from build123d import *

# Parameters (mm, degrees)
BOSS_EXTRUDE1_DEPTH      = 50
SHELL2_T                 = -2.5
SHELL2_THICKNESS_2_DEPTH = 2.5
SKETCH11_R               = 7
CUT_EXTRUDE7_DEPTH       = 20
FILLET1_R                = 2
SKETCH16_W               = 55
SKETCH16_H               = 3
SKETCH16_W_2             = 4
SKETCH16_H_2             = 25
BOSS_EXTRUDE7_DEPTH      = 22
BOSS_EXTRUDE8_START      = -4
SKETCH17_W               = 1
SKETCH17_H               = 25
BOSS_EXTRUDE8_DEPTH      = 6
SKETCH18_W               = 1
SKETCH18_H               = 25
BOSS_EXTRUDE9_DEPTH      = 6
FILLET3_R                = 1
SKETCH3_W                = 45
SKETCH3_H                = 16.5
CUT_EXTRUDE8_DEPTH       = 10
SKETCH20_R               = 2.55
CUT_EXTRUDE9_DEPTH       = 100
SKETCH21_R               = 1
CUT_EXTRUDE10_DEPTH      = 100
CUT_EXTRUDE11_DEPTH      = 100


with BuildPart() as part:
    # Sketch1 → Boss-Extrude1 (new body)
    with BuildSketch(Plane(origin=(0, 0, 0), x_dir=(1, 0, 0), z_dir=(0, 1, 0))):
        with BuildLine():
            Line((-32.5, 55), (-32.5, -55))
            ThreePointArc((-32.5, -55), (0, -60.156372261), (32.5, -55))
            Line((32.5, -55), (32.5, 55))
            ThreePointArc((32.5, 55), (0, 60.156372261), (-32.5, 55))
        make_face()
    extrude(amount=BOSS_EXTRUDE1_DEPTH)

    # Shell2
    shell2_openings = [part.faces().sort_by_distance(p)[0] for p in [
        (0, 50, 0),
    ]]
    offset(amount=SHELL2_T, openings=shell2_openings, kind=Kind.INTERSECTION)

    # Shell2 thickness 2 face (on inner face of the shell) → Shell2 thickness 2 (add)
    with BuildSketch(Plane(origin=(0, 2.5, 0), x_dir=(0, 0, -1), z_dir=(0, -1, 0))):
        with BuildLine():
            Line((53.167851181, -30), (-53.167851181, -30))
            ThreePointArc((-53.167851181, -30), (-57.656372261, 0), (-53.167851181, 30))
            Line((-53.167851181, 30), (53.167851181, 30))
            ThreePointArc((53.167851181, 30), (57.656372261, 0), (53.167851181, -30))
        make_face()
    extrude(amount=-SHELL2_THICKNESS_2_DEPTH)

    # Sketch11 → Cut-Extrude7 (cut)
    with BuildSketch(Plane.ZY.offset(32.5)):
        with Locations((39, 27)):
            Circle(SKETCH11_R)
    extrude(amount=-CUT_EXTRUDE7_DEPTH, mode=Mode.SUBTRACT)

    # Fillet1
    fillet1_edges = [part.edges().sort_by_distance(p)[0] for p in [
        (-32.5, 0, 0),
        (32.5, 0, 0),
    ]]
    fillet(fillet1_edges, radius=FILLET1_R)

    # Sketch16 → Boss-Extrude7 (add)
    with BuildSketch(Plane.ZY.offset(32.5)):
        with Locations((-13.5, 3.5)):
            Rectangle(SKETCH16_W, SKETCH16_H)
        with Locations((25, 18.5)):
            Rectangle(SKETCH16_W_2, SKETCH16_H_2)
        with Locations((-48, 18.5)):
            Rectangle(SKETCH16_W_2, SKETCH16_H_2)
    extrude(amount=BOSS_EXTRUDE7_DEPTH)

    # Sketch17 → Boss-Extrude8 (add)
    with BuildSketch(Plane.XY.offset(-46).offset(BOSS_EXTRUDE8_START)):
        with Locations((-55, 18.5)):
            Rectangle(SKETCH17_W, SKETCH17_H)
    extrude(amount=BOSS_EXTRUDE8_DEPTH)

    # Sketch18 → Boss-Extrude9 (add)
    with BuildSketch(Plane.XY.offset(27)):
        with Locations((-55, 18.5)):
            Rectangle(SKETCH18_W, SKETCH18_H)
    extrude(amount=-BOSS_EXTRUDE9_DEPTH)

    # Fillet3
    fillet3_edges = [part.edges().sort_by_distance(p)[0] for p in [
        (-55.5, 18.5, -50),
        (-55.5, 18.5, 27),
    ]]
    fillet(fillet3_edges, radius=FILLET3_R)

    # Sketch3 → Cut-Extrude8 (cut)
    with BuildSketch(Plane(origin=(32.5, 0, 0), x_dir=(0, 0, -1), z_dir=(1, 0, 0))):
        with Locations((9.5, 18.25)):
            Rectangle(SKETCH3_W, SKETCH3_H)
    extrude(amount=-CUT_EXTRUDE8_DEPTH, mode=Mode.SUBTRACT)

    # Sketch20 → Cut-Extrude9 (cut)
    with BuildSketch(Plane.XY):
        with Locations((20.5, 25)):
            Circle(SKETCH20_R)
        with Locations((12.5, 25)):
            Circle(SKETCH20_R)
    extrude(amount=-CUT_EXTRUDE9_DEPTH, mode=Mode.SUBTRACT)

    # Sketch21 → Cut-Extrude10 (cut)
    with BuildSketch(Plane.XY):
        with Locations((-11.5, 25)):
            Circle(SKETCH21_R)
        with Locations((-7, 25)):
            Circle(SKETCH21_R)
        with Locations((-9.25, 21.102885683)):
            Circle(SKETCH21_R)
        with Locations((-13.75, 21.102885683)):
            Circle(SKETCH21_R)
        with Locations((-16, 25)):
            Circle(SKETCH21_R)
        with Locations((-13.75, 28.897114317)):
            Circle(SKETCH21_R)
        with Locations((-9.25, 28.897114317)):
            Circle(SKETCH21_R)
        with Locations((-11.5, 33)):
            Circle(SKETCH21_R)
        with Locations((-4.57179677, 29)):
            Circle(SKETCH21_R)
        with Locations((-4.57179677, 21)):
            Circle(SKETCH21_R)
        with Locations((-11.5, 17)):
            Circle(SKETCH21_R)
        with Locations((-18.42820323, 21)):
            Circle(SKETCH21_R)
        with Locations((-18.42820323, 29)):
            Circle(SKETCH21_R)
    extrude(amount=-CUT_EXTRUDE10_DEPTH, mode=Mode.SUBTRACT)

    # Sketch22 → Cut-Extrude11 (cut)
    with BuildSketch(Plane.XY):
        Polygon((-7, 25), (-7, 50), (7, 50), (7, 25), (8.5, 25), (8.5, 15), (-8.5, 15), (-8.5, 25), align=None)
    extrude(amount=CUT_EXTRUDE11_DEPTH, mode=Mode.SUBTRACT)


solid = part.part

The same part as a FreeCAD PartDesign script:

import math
import FreeCAD as App
import Part
import Sketcher

V = App.Vector
Q = App.Units.Quantity


def edges_at(feature, points):
    """Names of the edges that pass closest to the given points."""
    edges = feature.Shape.Edges
    near = lambda p: min(range(len(edges)), key=lambda i: edges[i].distToShape(Part.Vertex(*p))[0])
    return sorted({f"Edge{near(p) + 1}" for p in points})


def faces_at(feature, points):
    """Names of the faces that lie closest to the given points."""
    faces = feature.Shape.Faces
    near = lambda p: min(range(len(faces)), key=lambda i: faces[i].distToShape(Part.Vertex(*p))[0])
    return sorted({f"Face{near(p) + 1}" for p in points})

doc = App.newDocument("Part")
body = doc.addObject("PartDesign::Body", "Body")

# Sketch on XZ plane
sketch1 = body.newObject("Sketcher::SketchObject", "Sketch")
sketch1.AttachmentSupport = (doc.getObject("XZ_Plane"), [""])
sketch1.MapMode = "FlatFace"
sketch1.addGeometry([
    Part.LineSegment(V(-32, -55, 0), V(-32, 55, 0)),
    Part.ArcOfCircle(Part.Circle(V(0, -45, 0), V(0, 0, 1), 105), math.radians(72), math.radians(108)),
    Part.LineSegment(V(32, 55, 0), V(32, -55, 0)),
    Part.ArcOfCircle(Part.Circle(V(0, 45, 0), V(0, 0, 1), 105), math.radians(-108), math.radians(-72)),
], False)
sketch1.addConstraint([
    Sketcher.Constraint("Coincident", 0, 2, 1, 2),
    Sketcher.Constraint("Coincident", 1, 1, 2, 1),
    Sketcher.Constraint("Coincident", 2, 2, 3, 2),
    Sketcher.Constraint("Coincident", 3, 1, 0, 1),
    Sketcher.Constraint("Vertical", 0),
    Sketcher.Constraint("Vertical", 2),
    Sketcher.Constraint("Equal", 1, 3),
    Sketcher.Constraint("Symmetric", 1, 3, 3, 3, -1, 1),
    Sketcher.Constraint("Symmetric", 0, 2, 1, 1, -2),
    Sketcher.Constraint("Radius", 1, Q("105 mm")),
    Sketcher.Constraint("DistanceY", 0, 1, 0, 2, Q("110 mm")),
    Sketcher.Constraint("DistanceX", 0, 2, 1, 1, Q("65 mm")),
])
pad1 = body.newObject("PartDesign::Pad", "Pad")
pad1.Profile = sketch1
pad1.Length = 50
pad1.Reversed = True
doc.recompute()

thickness = body.newObject("PartDesign::Thickness", "Thickness")
thickness.Base = (pad1, faces_at(pad1, [(0, 50, 0)]))
thickness.Value = 2.5
thickness.Reversed = True
thickness.Join = "Intersection"

# Sketch on XZ plane
sketch2 = body.newObject("Sketcher::SketchObject", "Sketch001")
sketch2.AttachmentSupport = (doc.getObject("XZ_Plane"), [""])
sketch2.MapMode = "FlatFace"
sketch2.AttachmentOffset = App.Placement(V(0, 0, -2.5), App.Rotation())
sketch2.addGeometry([
    Part.LineSegment(V(-30, 53, 0), V(-30, -53, 0)),
    Part.ArcOfCircle(Part.Circle(V(0, 45, 0), V(0, 0, 1), 103), math.radians(-107), math.radians(-73)),
    Part.LineSegment(V(30, -53, 0), V(30, 53, 0)),
    Part.ArcOfCircle(Part.Circle(V(0, -45, 0), V(0, 0, 1), 103), math.radians(73), math.radians(107)),
], False)
sketch2.addConstraint([
    Sketcher.Constraint("Coincident", 0, 2, 1, 1),
    Sketcher.Constraint("Coincident", 1, 2, 2, 1),
    Sketcher.Constraint("Coincident", 2, 2, 3, 1),
    Sketcher.Constraint("Coincident", 3, 2, 0, 1),
    Sketcher.Constraint("Vertical", 0),
    Sketcher.Constraint("Vertical", 2),
    Sketcher.Constraint("Equal", 1, 3),
    Sketcher.Constraint("Symmetric", 1, 3, 3, 3, -1, 1),
    Sketcher.Constraint("Symmetric", 0, 2, 1, 2, -2),
    Sketcher.Constraint("Radius", 1, Q("102.5 mm")),
    Sketcher.Constraint("DistanceX", 0, 2, -1, 1, Q("30 mm")),
    Sketcher.Constraint("DistanceY", 0, 2, 0, 1, Q("106.335702 mm")),
])
pad2 = body.newObject("PartDesign::Pad", "Pad001")
pad2.Profile = sketch2
pad2.Length = 2.5
pad2.Reversed = True

# Sketch on YZ plane
sketch3 = body.newObject("Sketcher::SketchObject", "Sketch002")
sketch3.AttachmentSupport = (doc.getObject("YZ_Plane"), [""])
sketch3.MapMode = "FlatFace"
sketch3.AttachmentOffset = App.Placement(V(0, 0, -32.5), App.Rotation())
sketch3.addGeometry(Part.Circle(V(27, 39, 0), V(0, 0, 1), 7), False)
sketch3.addConstraint([
    Sketcher.Constraint("Diameter", 0, Q("14 mm")),
    Sketcher.Constraint("DistanceX", -1, 1, 0, 3, Q("27 mm")),
    Sketcher.Constraint("DistanceY", -1, 1, 0, 3, Q("39 mm")),
])
pocket1 = body.newObject("PartDesign::Pocket", "Pocket")
pocket1.Profile = sketch3
pocket1.Length = 20
pocket1.Reversed = True
doc.recompute()

fillet = body.newObject("PartDesign::Fillet", "Fillet")
fillet.Base = (pocket1, edges_at(pocket1, [(-32.5, 0, 0), (32.5, 0, 0)]))
fillet.Radius = 2

# Sketch on YZ plane
sketch4 = body.newObject("Sketcher::SketchObject", "Sketch003")
sketch4.AttachmentSupport = (doc.getObject("YZ_Plane"), [""])
sketch4.MapMode = "FlatFace"
sketch4.AttachmentOffset = App.Placement(V(0, 0, -32.5), App.Rotation())
sketch4.addGeometry([
    Part.LineSegment(V(5, -41, 0), V(2, -41, 0)),  # 0
    Part.LineSegment(V(2, -41, 0), V(2, 14, 0)),  # 1
    Part.LineSegment(V(2, 14, 0), V(5, 14, 0)),  # 2
    Part.LineSegment(V(5, 14, 0), V(5, -41, 0)),  # 3
    Part.LineSegment(V(31, 23, 0), V(6, 23, 0)),  # 4
    Part.LineSegment(V(6, 23, 0), V(6, 27, 0)),  # 5
    Part.LineSegment(V(6, 27, 0), V(31, 27, 0)),  # 6
    Part.LineSegment(V(31, 27, 0), V(31, 23, 0)),  # 7
    Part.LineSegment(V(31, -50, 0), V(6, -50, 0)),  # 8
    Part.LineSegment(V(6, -50, 0), V(6, -46, 0)),  # 9
    Part.LineSegment(V(6, -46, 0), V(31, -46, 0)),  # 10
    Part.LineSegment(V(31, -46, 0), V(31, -50, 0)),  # 11
], False)
sketch4.addConstraint([
    Sketcher.Constraint("Coincident", 0, 2, 1, 1),
    Sketcher.Constraint("Coincident", 1, 2, 2, 1),
    Sketcher.Constraint("Coincident", 2, 2, 3, 1),
    Sketcher.Constraint("Coincident", 3, 2, 0, 1),
    Sketcher.Constraint("Coincident", 4, 2, 5, 1),
    Sketcher.Constraint("Coincident", 5, 2, 6, 1),
    Sketcher.Constraint("Coincident", 6, 2, 7, 1),
    Sketcher.Constraint("Coincident", 7, 2, 4, 1),
    Sketcher.Constraint("Coincident", 8, 2, 9, 1),
    Sketcher.Constraint("Coincident", 9, 2, 10, 1),
    Sketcher.Constraint("Coincident", 10, 2, 11, 1),
    Sketcher.Constraint("Coincident", 11, 2, 8, 1),
    Sketcher.Constraint("Horizontal", 0),
    Sketcher.Constraint("Vertical", 1),
    Sketcher.Constraint("Horizontal", 2),
    Sketcher.Constraint("Vertical", 3),
    Sketcher.Constraint("Horizontal", 4),
    Sketcher.Constraint("Vertical", 5),
    Sketcher.Constraint("Horizontal", 6),
    Sketcher.Constraint("Vertical", 7),
    Sketcher.Constraint("Horizontal", 8),
    Sketcher.Constraint("Vertical", 9),
    Sketcher.Constraint("Horizontal", 10),
    Sketcher.Constraint("Vertical", 11),
    Sketcher.Constraint("Vertical", 5, 2, 8, 2),
    Sketcher.Constraint("Vertical", 7, 2, 10, 2),
    Sketcher.Constraint("Equal", 7, 9),
    Sketcher.Constraint("DistanceX", 0, 2, 0, 1, Q("3 mm")),
    Sketcher.Constraint("DistanceX", 4, 2, 4, 1, Q("25 mm")),
    Sketcher.Constraint("DistanceY", 1, 1, 1, 2, Q("55 mm")),
    Sketcher.Constraint("DistanceY", 5, 1, 5, 2, Q("4 mm")),
    Sketcher.Constraint("DistanceX", -1, 1, 0, 2, Q("2 mm")),
    Sketcher.Constraint("DistanceY", 0, 2, -1, 1, Q("41 mm")),
    Sketcher.Constraint("DistanceX", -1, 1, 4, 2, Q("6 mm")),
    Sketcher.Constraint("DistanceY", -1, 1, 4, 2, Q("23 mm")),
    Sketcher.Constraint("DistanceY", 8, 2, -1, 1, Q("50 mm")),
])
pad3 = body.newObject("PartDesign::Pad", "Pad002")
pad3.Profile = sketch4
pad3.Length = 22
pad3.Reversed = True

# Sketch on XY plane
sketch5 = body.newObject("Sketcher::SketchObject", "Sketch004")
sketch5.AttachmentSupport = (doc.getObject("XY_Plane"), [""])
sketch5.MapMode = "FlatFace"
sketch5.AttachmentOffset = App.Placement(V(0, 0, -50), App.Rotation())
sketch5.addGeometry([
    Part.LineSegment(V(-55.5, 31, 0), V(-55.5, 6, 0)),
    Part.LineSegment(V(-55.5, 6, 0), V(-54.5, 6, 0)),
    Part.LineSegment(V(-54.5, 6, 0), V(-54.5, 31, 0)),
    Part.LineSegment(V(-54.5, 31, 0), V(-55.5, 31, 0)),
], False)
sketch5.addConstraint([
    Sketcher.Constraint("Coincident", 0, 2, 1, 1),
    Sketcher.Constraint("Coincident", 1, 2, 2, 1),
    Sketcher.Constraint("Coincident", 2, 2, 3, 1),
    Sketcher.Constraint("Coincident", 3, 2, 0, 1),
    Sketcher.Constraint("Vertical", 0),
    Sketcher.Constraint("Horizontal", 1),
    Sketcher.Constraint("Vertical", 2),
    Sketcher.Constraint("Horizontal", 3),
    Sketcher.Constraint("DistanceX", 1, 1, 1, 2, Q("1 mm")),
    Sketcher.Constraint("DistanceY", 0, 2, 0, 1, Q("25 mm")),
    Sketcher.Constraint("DistanceY", -1, 1, 0, 2, Q("6 mm")),
    Sketcher.Constraint("DistanceX", 0, 2, -1, 1, Q("55.5 mm")),
])
pad4 = body.newObject("PartDesign::Pad", "Pad003")
pad4.Profile = sketch5
pad4.Length = 6

# Sketch on XY plane
sketch6 = body.newObject("Sketcher::SketchObject", "Sketch005")
sketch6.AttachmentSupport = (doc.getObject("XY_Plane"), [""])
sketch6.MapMode = "FlatFace"
sketch6.AttachmentOffset = App.Placement(V(0, 0, 27), App.Rotation())
sketch6.addGeometry([
    Part.LineSegment(V(-55.5, 31, 0), V(-55.5, 6, 0)),
    Part.LineSegment(V(-55.5, 6, 0), V(-54.5, 6, 0)),
    Part.LineSegment(V(-54.5, 6, 0), V(-54.5, 31, 0)),
    Part.LineSegment(V(-54.5, 31, 0), V(-55.5, 31, 0)),
], False)
sketch6.addConstraint([
    Sketcher.Constraint("Coincident", 0, 2, 1, 1),
    Sketcher.Constraint("Coincident", 1, 2, 2, 1),
    Sketcher.Constraint("Coincident", 2, 2, 3, 1),
    Sketcher.Constraint("Coincident", 3, 2, 0, 1),
    Sketcher.Constraint("Vertical", 0),
    Sketcher.Constraint("Horizontal", 1),
    Sketcher.Constraint("Vertical", 2),
    Sketcher.Constraint("Horizontal", 3),
    Sketcher.Constraint("DistanceX", 1, 1, 1, 2, Q("1 mm")),
    Sketcher.Constraint("DistanceY", 0, 2, 0, 1, Q("25 mm")),
    Sketcher.Constraint("DistanceY", -1, 1, 0, 2, Q("6 mm")),
    Sketcher.Constraint("DistanceX", 0, 2, -1, 1, Q("55.5 mm")),
])
pad5 = body.newObject("PartDesign::Pad", "Pad004")
pad5.Profile = sketch6
pad5.Length = 6
pad5.Reversed = True
doc.recompute()

fillet2 = body.newObject("PartDesign::Fillet", "Fillet001")
fillet2.Base = (pad5, edges_at(pad5, [(-55.5, 18.5, -50), (-55.5, 18.5, 27)]))
fillet2.Radius = 1

# Sketch on YZ plane
sketch7 = body.newObject("Sketcher::SketchObject", "Sketch006")
sketch7.AttachmentSupport = (doc.getObject("YZ_Plane"), [""])
sketch7.MapMode = "FlatFace"
sketch7.AttachmentOffset = App.Placement(V(0, 0, 32.5), App.Rotation())
sketch7.addGeometry([
    Part.LineSegment(V(26, 13, 0), V(10, 13, 0)),
    Part.LineSegment(V(10, 13, 0), V(10, -32, 0)),
    Part.LineSegment(V(10, -32, 0), V(26, -32, 0)),
    Part.LineSegment(V(26, -32, 0), V(26, 13, 0)),
], False)
sketch7.addConstraint([
    Sketcher.Constraint("Coincident", 0, 2, 1, 1),
    Sketcher.Constraint("Coincident", 1, 2, 2, 1),
    Sketcher.Constraint("Coincident", 2, 2, 3, 1),
    Sketcher.Constraint("Coincident", 3, 2, 0, 1),
    Sketcher.Constraint("Horizontal", 0),
    Sketcher.Constraint("Vertical", 1),
    Sketcher.Constraint("Horizontal", 2),
    Sketcher.Constraint("Vertical", 3),
    Sketcher.Constraint("DistanceY", 1, 2, 1, 1, Q("45 mm")),
    Sketcher.Constraint("DistanceX", 0, 2, 0, 1, Q("16.5 mm")),
    Sketcher.Constraint("DistanceX", -1, 1, 0, 2, Q("10 mm")),
    Sketcher.Constraint("DistanceY", -1, 1, 0, 2, Q("13 mm")),
])
pocket2 = body.newObject("PartDesign::Pocket", "Pocket001")
pocket2.Profile = sketch7
pocket2.Length = 10

# Sketch on XY plane
sketch8 = body.newObject("Sketcher::SketchObject", "Sketch007")
sketch8.AttachmentSupport = (doc.getObject("XY_Plane"), [""])
sketch8.MapMode = "FlatFace"
sketch8.addGeometry([
    Part.Circle(V(20.5, 25, 0), V(0, 0, 1), 2.5),
    Part.Circle(V(12.5, 25, 0), V(0, 0, 1), 2.5),
], False)
sketch8.addConstraint([
    Sketcher.Constraint("Equal", 0, 1),
    Sketcher.Constraint("Horizontal", 0, 3, 1, 3),
    Sketcher.Constraint("Diameter", 0, Q("5.1 mm")),
    Sketcher.Constraint("DistanceY", -1, 1, 0, 3, Q("25 mm")),
    Sketcher.Constraint("DistanceX", 1, 3, 0, 3, Q("8 mm")),
    Sketcher.Constraint("DistanceX", -1, 1, 0, 3, Q("20.5 mm")),
])
pocket3 = body.newObject("PartDesign::Pocket", "Pocket002")
pocket3.Profile = sketch8
pocket3.Length = 100

# Sketch on XY plane
sketch9 = body.newObject("Sketcher::SketchObject", "Sketch008")
sketch9.AttachmentSupport = (doc.getObject("XY_Plane"), [""])
sketch9.MapMode = "FlatFace"
sketch9.addGeometry([
    Part.Circle(V(-11.5, 25, 0), V(0, 0, 1), 1),  # 0
    Part.Circle(V(-7, 25, 0), V(0, 0, 1), 1),  # 1
    Part.Circle(V(-9.2, 21.1, 0), V(0, 0, 1), 1),  # 2
    Part.Circle(V(-13.8, 21.1, 0), V(0, 0, 1), 1),  # 3
    Part.Circle(V(-16, 25, 0), V(0, 0, 1), 1),  # 4
    Part.Circle(V(-13.8, 28.9, 0), V(0, 0, 1), 1),  # 5
    Part.Circle(V(-9.2, 28.9, 0), V(0, 0, 1), 1),  # 6
    Part.Circle(V(-11.5, 33, 0), V(0, 0, 1), 1),  # 7
    Part.Circle(V(-4.6, 29, 0), V(0, 0, 1), 1),  # 8
    Part.Circle(V(-4.6, 21, 0), V(0, 0, 1), 1),  # 9
    Part.Circle(V(-11.5, 17, 0), V(0, 0, 1), 1),  # 10
    Part.Circle(V(-18.4, 21, 0), V(0, 0, 1), 1),  # 11
    Part.Circle(V(-18.4, 29, 0), V(0, 0, 1), 1),  # 12
], False)
sketch9.addConstraint([
    Sketcher.Constraint("Equal", 0, 1),
    Sketcher.Constraint("Equal", 1, 2),
    Sketcher.Constraint("Equal", 2, 3),
    Sketcher.Constraint("Equal", 3, 4),
    Sketcher.Constraint("Equal", 4, 5),
    Sketcher.Constraint("Equal", 5, 6),
    Sketcher.Constraint("Equal", 6, 7),
    Sketcher.Constraint("Equal", 7, 8),
    Sketcher.Constraint("Equal", 8, 9),
    Sketcher.Constraint("Equal", 9, 10),
    Sketcher.Constraint("Equal", 10, 11),
    Sketcher.Constraint("Equal", 11, 12),
    Sketcher.Constraint("Horizontal", 0, 3, 1, 3),
    Sketcher.Constraint("Horizontal", 2, 3, 3, 3),
    Sketcher.Constraint("Horizontal", 1, 3, 4, 3),
    Sketcher.Constraint("Horizontal", 5, 3, 6, 3),
    Sketcher.Constraint("Horizontal", 9, 3, 11, 3),
    Sketcher.Constraint("Horizontal", 8, 3, 12, 3),
    Sketcher.Constraint("Vertical", 3, 3, 5, 3),
    Sketcher.Constraint("Vertical", 2, 3, 6, 3),
    Sketcher.Constraint("Vertical", 0, 3, 7, 3),
    Sketcher.Constraint("Vertical", 8, 3, 9, 3),
    Sketcher.Constraint("Vertical", 7, 3, 10, 3),
    Sketcher.Constraint("Vertical", 11, 3, 12, 3),
    Sketcher.Constraint("Diameter", 0, Q("2 mm")),
    Sketcher.Constraint("DistanceY", -1, 1, 0, 3, Q("25 mm")),
    Sketcher.Constraint("DistanceX", 1, 3, -1, 1, Q("7 mm")),
    Sketcher.Constraint("DistanceX", 4, 3, -1, 1, Q("16 mm")),
    Sketcher.Constraint("DistanceY", -1, 1, 7, 3, Q("33 mm")),
    Sketcher.Constraint("DistanceY", -1, 1, 8, 3, Q("29 mm")),
    Sketcher.Constraint("DistanceY", -1, 1, 9, 3, Q("21 mm")),
    Sketcher.Constraint("DistanceY", -1, 1, 10, 3, Q("17 mm")),
    Sketcher.Constraint("DistanceX", 0, 3, -1, 1, Q("11.5 mm")),
    Sketcher.Constraint("DistanceX", 3, 3, 2, 3, Q("4.5 mm")),
    Sketcher.Constraint("DistanceX", 2, 3, -1, 1, Q("9.25 mm")),
    Sketcher.Constraint("DistanceY", 3, 3, 5, 3, Q("7.794229 mm")),
    Sketcher.Constraint("DistanceY", -1, 1, 2, 3, Q("21.102886 mm")),
    Sketcher.Constraint("DistanceX", 8, 3, -1, 1, Q("4.571797 mm")),
    Sketcher.Constraint("DistanceX", 11, 3, -1, 1, Q("18.428203 mm")),
])
pocket4 = body.newObject("PartDesign::Pocket", "Pocket003")
pocket4.Profile = sketch9
pocket4.Length = 100

# Sketch on XY plane
sketch10 = body.newObject("Sketcher::SketchObject", "Sketch009")
sketch10.AttachmentSupport = (doc.getObject("XY_Plane"), [""])
sketch10.MapMode = "FlatFace"
sketch10.addGeometry([
    Part.LineSegment(V(-7, 50, 0), V(-7, 25, 0)),  # 0
    Part.LineSegment(V(-7, 25, 0), V(-8.5, 25, 0)),  # 1
    Part.LineSegment(V(-8.5, 25, 0), V(-8.5, 15, 0)),  # 2
    Part.LineSegment(V(-8.5, 15, 0), V(8.5, 15, 0)),  # 3
    Part.LineSegment(V(8.5, 15, 0), V(8.5, 25, 0)),  # 4
    Part.LineSegment(V(8.5, 25, 0), V(7, 25, 0)),  # 5
    Part.LineSegment(V(7, 25, 0), V(7, 50, 0)),  # 6
    Part.LineSegment(V(7, 50, 0), V(-7, 50, 0)),  # 7
], False)
sketch10.addConstraint([
    Sketcher.Constraint("Coincident", 0, 2, 1, 1),
    Sketcher.Constraint("Coincident", 1, 2, 2, 1),
    Sketcher.Constraint("Coincident", 2, 2, 3, 1),
    Sketcher.Constraint("Coincident", 3, 2, 4, 1),
    Sketcher.Constraint("Coincident", 4, 2, 5, 1),
    Sketcher.Constraint("Coincident", 5, 2, 6, 1),
    Sketcher.Constraint("Coincident", 6, 2, 7, 1),
    Sketcher.Constraint("Coincident", 7, 2, 0, 1),
    Sketcher.Constraint("Vertical", 0),
    Sketcher.Constraint("Horizontal", 1),
    Sketcher.Constraint("Vertical", 2),
    Sketcher.Constraint("Horizontal", 3),
    Sketcher.Constraint("Vertical", 4),
    Sketcher.Constraint("Horizontal", 5),
    Sketcher.Constraint("Vertical", 6),
    Sketcher.Constraint("Horizontal", 7),
    Sketcher.Constraint("Symmetric", 1, 2, 4, 2, -2),
    Sketcher.Constraint("Equal", 1, 5),
    Sketcher.Constraint("DistanceX", 3, 1, 3, 2, Q("17 mm")),
    Sketcher.Constraint("DistanceX", 7, 2, 7, 1, Q("14 mm")),
    Sketcher.Constraint("DistanceY", 0, 2, 0, 1, Q("25 mm")),
    Sketcher.Constraint("DistanceY", 2, 2, 2, 1, Q("10 mm")),
    Sketcher.Constraint("DistanceY", -1, 1, 0, 2, Q("25 mm")),
])
pocket5 = body.newObject("PartDesign::Pocket", "Pocket004")
pocket5.Profile = sketch10
pocket5.Length = 100
pocket5.Reversed = True

doc.recompute()
